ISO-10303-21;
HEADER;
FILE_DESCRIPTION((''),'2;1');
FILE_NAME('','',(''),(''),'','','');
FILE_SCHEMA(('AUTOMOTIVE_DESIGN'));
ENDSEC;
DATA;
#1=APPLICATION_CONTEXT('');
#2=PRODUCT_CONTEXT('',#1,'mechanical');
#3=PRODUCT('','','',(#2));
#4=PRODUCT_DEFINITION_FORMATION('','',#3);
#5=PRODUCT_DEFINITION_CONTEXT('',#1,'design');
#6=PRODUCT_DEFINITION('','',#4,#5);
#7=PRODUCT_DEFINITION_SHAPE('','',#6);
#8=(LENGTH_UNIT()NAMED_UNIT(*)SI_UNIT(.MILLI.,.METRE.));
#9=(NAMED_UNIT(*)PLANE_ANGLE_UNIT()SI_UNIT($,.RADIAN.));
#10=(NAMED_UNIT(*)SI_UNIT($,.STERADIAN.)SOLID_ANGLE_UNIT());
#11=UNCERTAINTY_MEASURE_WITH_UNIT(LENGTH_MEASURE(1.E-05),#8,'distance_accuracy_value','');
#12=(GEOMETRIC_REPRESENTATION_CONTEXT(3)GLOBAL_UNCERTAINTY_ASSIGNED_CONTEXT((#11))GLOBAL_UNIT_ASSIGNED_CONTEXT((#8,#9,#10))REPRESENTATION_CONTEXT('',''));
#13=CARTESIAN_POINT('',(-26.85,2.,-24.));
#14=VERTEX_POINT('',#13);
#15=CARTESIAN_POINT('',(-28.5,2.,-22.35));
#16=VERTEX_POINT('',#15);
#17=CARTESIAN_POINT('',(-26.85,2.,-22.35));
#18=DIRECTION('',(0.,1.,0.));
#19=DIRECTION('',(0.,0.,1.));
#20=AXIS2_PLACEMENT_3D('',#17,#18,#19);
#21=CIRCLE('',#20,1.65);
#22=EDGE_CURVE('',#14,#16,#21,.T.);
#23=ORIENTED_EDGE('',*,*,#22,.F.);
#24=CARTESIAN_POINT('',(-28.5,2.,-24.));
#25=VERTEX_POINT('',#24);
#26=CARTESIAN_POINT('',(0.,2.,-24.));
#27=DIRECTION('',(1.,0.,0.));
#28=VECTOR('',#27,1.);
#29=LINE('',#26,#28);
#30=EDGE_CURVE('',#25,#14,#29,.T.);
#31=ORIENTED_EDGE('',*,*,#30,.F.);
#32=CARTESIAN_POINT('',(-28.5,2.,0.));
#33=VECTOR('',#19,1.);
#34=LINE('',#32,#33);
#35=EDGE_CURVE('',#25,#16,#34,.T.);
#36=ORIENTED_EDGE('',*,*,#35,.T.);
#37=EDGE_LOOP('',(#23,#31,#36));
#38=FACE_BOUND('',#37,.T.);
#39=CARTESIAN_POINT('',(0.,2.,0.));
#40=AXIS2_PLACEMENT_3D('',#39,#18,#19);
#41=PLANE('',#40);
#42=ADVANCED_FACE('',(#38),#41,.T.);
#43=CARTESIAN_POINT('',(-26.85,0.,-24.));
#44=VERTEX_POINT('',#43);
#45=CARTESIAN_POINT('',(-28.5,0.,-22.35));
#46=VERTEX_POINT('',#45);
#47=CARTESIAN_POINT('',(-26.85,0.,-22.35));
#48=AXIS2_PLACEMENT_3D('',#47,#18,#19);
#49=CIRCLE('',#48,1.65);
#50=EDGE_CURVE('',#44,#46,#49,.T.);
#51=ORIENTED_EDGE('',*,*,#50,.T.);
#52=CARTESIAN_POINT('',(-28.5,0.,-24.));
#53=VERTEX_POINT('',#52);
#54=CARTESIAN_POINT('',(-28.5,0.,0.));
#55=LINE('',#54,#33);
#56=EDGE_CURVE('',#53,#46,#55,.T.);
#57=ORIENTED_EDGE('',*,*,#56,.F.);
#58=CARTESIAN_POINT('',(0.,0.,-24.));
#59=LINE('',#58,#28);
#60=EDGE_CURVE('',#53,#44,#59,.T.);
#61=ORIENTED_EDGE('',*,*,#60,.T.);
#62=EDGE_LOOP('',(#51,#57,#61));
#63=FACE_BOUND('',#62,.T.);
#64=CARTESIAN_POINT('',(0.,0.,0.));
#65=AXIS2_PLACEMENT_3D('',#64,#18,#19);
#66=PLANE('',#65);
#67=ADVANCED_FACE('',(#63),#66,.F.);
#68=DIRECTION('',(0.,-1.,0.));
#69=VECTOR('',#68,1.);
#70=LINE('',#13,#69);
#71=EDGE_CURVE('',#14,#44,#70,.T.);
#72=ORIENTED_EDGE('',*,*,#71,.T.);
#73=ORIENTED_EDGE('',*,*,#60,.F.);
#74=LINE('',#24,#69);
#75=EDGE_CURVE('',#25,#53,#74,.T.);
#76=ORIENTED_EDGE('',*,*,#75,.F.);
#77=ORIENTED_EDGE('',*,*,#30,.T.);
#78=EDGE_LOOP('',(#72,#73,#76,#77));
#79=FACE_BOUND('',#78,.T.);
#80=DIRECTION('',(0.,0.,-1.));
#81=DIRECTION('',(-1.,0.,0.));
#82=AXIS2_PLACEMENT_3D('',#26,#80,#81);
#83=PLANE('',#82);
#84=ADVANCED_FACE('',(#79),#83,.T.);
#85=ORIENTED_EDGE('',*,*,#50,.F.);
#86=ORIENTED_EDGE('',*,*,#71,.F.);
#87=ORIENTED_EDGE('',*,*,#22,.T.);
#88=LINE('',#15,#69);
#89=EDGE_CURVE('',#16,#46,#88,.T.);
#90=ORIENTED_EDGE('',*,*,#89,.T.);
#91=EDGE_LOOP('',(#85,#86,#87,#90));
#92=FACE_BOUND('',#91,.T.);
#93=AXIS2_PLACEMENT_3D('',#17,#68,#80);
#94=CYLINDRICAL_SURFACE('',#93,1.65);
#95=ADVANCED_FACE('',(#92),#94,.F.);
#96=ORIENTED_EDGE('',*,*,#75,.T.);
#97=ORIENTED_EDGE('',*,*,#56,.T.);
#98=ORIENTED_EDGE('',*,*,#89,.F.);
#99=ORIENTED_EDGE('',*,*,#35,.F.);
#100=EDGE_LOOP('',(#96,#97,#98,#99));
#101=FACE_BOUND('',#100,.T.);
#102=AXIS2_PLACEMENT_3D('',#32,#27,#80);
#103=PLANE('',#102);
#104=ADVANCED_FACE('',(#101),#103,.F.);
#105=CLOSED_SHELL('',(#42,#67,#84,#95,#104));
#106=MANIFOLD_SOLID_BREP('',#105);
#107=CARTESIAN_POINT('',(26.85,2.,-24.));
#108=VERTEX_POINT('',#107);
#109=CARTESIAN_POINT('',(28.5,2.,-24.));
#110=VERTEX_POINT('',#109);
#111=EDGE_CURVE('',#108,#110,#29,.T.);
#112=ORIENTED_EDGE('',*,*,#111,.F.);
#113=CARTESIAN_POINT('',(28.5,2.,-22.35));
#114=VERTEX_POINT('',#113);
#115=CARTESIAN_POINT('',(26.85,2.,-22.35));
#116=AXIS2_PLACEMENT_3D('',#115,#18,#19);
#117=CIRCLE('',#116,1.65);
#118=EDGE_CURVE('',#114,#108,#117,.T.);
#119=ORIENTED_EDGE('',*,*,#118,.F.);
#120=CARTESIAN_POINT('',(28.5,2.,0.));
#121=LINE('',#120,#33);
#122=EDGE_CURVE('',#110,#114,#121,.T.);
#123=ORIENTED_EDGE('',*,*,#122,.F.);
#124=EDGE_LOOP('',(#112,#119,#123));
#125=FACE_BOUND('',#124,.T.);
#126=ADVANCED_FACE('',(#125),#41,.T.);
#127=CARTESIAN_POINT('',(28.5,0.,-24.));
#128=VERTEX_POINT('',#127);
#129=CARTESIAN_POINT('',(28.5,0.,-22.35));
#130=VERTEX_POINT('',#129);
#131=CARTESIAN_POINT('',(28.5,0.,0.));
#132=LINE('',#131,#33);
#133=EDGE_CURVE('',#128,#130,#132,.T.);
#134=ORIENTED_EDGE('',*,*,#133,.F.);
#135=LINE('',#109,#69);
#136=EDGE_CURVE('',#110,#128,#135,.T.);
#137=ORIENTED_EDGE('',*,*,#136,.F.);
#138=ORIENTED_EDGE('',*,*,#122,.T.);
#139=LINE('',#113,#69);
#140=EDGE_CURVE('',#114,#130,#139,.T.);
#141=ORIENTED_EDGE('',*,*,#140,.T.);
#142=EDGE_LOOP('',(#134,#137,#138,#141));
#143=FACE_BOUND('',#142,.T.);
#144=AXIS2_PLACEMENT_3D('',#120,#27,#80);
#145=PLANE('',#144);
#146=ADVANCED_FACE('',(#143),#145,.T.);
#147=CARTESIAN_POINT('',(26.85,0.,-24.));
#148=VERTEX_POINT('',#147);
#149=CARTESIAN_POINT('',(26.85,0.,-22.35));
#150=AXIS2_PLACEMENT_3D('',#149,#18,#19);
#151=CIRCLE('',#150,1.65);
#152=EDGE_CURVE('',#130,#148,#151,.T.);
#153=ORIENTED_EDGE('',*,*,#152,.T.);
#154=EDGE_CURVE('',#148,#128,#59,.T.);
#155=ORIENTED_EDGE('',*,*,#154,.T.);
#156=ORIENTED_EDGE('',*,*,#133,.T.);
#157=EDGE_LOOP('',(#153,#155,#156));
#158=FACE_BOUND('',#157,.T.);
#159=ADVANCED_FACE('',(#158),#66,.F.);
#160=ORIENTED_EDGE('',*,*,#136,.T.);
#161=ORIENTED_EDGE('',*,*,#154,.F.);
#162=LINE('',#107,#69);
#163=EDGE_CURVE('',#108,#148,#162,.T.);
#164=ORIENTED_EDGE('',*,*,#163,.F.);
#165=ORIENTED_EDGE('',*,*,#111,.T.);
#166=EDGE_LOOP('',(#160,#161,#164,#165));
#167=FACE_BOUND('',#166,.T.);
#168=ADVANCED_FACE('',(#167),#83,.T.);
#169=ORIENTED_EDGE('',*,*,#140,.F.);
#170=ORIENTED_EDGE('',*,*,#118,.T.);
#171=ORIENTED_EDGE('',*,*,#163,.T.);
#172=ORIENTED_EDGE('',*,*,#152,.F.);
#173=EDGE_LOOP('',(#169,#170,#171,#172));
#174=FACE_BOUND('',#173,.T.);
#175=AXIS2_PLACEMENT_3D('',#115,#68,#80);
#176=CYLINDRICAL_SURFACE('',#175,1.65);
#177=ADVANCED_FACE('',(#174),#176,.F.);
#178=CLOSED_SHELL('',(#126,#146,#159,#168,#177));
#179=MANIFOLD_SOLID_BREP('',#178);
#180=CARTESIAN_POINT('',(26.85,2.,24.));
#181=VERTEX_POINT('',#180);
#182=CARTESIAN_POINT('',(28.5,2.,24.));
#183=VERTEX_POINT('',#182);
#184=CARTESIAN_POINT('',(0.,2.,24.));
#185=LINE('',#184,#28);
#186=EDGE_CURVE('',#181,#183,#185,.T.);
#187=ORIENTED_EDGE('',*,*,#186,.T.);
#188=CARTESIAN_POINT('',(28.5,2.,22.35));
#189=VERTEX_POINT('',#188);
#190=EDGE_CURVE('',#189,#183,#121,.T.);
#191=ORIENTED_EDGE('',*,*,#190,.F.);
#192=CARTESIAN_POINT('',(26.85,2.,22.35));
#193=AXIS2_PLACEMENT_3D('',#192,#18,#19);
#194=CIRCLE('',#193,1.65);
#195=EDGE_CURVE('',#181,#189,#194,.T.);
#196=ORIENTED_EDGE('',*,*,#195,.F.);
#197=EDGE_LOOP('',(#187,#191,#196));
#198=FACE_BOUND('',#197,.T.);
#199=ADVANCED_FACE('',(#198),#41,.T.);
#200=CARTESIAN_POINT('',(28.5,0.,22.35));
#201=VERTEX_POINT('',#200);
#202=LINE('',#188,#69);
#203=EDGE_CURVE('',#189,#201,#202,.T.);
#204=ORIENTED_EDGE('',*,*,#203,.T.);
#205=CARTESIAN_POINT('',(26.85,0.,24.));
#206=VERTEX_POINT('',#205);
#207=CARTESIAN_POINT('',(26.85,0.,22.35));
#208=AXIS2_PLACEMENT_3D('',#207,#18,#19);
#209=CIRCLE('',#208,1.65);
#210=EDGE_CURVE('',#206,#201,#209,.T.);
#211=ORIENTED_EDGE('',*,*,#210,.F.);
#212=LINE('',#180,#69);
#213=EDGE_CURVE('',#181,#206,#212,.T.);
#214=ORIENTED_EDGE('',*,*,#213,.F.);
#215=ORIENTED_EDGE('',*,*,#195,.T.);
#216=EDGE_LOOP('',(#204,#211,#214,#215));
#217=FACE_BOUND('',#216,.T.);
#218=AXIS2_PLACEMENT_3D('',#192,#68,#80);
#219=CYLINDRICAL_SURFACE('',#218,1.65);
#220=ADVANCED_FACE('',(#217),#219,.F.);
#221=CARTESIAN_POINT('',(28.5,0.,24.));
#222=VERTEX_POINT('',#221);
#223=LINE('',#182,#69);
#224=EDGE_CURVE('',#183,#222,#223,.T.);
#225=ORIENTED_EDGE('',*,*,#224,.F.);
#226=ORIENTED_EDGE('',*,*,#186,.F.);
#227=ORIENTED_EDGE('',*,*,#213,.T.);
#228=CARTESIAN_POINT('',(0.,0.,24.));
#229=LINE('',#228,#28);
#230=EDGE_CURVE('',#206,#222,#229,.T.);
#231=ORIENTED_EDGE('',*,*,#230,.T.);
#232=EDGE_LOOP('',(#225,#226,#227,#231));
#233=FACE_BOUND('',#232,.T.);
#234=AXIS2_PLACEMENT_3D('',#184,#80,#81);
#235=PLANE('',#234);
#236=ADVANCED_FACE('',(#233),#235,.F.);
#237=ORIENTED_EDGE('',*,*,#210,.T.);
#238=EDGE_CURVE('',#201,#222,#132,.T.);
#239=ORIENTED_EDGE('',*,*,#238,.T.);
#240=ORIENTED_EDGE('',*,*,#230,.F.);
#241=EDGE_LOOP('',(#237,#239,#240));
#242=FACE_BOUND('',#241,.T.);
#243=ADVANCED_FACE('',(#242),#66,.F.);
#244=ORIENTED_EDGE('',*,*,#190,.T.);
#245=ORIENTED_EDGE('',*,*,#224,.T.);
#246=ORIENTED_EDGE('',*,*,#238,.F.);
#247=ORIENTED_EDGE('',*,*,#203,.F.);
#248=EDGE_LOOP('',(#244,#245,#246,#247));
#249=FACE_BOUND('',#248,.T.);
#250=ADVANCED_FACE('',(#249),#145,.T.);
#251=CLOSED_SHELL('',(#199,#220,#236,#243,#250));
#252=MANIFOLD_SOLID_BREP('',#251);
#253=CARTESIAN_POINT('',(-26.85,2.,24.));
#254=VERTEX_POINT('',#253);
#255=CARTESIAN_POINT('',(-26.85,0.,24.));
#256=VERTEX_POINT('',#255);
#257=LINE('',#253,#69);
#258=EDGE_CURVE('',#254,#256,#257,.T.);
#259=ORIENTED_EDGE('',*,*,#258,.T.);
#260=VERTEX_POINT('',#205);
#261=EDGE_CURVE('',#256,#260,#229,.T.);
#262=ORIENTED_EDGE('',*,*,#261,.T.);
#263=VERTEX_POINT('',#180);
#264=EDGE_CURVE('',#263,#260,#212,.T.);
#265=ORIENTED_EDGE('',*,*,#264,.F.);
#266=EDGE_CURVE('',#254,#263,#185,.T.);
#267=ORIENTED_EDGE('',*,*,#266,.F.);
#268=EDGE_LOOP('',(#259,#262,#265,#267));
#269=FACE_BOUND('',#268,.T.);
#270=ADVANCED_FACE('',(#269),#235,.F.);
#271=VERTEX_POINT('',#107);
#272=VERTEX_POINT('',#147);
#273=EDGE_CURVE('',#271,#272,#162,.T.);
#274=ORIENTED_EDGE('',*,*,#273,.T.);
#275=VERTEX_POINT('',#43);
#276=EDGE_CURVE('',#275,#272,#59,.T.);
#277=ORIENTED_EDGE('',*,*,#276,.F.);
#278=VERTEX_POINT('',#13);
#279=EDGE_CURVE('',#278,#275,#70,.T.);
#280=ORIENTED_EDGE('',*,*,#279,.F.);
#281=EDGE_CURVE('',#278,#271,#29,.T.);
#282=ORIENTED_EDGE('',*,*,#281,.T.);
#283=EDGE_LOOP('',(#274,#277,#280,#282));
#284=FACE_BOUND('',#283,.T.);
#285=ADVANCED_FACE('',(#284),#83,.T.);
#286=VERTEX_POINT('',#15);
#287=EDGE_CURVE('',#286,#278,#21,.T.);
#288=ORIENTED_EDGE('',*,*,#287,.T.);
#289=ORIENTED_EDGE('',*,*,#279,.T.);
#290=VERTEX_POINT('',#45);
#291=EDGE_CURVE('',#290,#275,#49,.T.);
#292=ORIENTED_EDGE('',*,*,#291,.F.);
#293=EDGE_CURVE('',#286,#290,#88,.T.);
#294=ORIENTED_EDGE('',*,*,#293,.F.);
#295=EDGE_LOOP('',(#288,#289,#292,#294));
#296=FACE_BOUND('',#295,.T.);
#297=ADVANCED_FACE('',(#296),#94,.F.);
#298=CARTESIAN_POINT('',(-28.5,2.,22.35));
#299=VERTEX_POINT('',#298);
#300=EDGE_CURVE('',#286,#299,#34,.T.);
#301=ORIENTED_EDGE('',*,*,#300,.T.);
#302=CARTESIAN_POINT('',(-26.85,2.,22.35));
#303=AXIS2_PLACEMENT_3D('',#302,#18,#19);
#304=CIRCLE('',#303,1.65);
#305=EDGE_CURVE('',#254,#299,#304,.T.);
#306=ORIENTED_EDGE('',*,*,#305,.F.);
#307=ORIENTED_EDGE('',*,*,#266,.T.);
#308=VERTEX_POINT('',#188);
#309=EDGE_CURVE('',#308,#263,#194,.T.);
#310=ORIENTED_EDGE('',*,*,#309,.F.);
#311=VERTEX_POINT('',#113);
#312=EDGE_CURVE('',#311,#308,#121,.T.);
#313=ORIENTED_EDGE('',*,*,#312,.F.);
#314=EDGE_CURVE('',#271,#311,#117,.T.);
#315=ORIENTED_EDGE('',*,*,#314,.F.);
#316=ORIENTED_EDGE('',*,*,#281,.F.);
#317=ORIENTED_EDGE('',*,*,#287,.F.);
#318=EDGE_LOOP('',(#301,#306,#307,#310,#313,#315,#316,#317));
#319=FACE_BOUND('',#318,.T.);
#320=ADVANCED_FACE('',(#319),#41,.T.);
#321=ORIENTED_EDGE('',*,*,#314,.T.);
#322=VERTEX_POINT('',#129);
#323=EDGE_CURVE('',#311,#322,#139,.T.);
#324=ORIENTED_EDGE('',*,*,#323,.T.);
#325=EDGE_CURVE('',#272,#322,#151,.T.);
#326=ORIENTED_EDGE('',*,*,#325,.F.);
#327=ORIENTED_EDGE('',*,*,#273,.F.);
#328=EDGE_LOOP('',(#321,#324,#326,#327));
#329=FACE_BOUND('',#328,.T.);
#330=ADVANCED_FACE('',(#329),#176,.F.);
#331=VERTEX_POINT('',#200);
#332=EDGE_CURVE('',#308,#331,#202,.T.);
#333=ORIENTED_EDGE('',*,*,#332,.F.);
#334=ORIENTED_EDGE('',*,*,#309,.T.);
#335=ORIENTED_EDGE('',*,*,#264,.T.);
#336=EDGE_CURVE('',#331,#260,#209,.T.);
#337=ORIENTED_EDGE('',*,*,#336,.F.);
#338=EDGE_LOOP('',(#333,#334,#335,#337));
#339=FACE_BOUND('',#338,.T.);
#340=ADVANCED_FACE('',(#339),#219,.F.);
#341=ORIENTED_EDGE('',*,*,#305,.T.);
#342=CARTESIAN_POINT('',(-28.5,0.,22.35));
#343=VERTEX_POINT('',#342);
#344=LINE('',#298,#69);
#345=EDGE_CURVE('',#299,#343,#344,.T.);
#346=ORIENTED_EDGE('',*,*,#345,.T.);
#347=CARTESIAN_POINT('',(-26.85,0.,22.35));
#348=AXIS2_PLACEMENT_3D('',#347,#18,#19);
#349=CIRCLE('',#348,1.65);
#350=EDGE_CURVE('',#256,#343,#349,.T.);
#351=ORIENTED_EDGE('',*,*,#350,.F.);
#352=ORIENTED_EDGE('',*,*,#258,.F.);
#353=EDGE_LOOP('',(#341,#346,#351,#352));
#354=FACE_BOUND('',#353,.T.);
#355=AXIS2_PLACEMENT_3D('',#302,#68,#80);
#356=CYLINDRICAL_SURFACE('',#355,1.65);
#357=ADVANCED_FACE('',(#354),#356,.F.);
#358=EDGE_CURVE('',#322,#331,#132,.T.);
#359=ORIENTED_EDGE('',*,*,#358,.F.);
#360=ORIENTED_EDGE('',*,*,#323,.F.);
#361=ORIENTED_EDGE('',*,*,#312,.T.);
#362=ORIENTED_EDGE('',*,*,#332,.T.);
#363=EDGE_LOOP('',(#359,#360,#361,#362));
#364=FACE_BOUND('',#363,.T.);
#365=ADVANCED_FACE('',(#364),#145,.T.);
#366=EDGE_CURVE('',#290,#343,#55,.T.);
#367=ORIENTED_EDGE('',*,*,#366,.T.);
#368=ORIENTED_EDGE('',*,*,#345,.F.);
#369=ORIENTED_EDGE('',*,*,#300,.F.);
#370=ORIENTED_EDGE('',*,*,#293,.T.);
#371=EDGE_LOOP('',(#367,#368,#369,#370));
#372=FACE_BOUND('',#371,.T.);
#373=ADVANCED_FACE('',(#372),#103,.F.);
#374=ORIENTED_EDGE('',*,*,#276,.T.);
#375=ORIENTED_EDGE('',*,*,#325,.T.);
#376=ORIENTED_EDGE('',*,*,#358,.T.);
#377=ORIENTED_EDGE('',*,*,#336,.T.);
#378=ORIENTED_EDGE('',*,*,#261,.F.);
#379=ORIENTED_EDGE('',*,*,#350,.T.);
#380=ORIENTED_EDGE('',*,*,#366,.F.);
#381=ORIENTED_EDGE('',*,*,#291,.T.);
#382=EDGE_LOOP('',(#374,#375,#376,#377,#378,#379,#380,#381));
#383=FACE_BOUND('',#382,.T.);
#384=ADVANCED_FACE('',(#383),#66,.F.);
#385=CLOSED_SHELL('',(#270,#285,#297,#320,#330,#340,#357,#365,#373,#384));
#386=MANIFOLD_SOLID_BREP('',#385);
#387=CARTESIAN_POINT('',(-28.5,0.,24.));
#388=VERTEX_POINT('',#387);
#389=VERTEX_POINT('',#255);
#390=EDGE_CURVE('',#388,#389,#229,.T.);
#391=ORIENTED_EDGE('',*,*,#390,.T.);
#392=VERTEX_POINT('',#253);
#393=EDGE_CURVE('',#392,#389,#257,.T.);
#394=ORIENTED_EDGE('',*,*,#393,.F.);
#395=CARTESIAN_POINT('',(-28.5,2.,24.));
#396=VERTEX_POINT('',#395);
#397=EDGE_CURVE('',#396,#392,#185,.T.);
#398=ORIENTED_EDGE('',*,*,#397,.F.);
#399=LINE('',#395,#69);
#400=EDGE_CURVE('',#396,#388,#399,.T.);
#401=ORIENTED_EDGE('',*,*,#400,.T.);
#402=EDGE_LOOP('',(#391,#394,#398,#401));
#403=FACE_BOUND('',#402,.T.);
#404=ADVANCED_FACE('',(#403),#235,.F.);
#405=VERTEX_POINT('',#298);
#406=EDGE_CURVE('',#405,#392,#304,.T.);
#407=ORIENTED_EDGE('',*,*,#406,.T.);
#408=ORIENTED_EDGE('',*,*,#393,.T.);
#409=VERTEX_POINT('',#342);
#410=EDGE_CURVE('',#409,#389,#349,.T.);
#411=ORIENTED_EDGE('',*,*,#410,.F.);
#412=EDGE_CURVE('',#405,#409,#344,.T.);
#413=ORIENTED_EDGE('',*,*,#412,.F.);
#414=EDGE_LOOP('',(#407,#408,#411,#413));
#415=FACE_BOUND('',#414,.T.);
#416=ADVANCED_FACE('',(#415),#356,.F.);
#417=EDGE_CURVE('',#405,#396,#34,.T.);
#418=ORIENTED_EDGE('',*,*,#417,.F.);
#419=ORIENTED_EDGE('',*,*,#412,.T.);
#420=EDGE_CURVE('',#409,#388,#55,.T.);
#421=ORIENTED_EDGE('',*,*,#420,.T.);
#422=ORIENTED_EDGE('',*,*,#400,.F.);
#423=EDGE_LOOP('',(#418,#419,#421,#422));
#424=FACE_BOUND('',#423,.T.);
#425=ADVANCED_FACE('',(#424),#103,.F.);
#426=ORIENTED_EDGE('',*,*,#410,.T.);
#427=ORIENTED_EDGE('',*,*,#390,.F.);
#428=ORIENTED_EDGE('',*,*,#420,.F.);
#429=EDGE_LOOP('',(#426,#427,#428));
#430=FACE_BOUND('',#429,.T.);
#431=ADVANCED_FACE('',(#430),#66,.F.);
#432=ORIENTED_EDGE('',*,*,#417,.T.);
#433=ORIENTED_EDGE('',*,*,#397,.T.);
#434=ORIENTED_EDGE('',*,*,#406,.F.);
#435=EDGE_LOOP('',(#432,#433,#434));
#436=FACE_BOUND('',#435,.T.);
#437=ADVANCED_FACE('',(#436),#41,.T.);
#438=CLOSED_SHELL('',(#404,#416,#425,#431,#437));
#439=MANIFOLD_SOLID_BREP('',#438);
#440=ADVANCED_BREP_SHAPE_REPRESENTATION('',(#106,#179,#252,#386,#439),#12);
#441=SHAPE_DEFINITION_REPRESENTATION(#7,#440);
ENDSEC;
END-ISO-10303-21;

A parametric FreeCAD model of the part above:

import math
import FreeCAD as App
import Part
import Sketcher

doc = App.newDocument("Part")
body = doc.addObject("PartDesign::Body", "Body")
body.AllowCompound = True

# Sketch on XZ plane
sketch1 = doc.addObject("Sketcher::SketchObject", "Sketch")
body.addObject(sketch1)
sketch1.AttachmentSupport = (doc.XZ_Plane, [""])
sketch1.MapMode = "FlatFace"
sketch1.addGeometry(Part.LineSegment(App.Vector(-26.9, -24, 0), App.Vector(-28.5, -24, 0)), False)
sketch1.addGeometry(Part.LineSegment(App.Vector(-28.5, -24, 0), App.Vector(-28.5, -22.4, 0)), False)
sketch1.addGeometry(Part.ArcOfCircle(Part.Circle(App.Vector(-26.9, -22.4, 0), App.Vector(0, 0, 1), 1.6), math.radians(180), math.radians(270)), False)
sketch1.addGeometry(Part.LineSegment(App.Vector(26.9, -24, 0), App.Vector(-26.9, -24, 0)), False)
sketch1.addGeometry(Part.ArcOfCircle(Part.Circle(App.Vector(-26.9, -22.4, 0), App.Vector(0, 0, 1), 1.6), math.radians(-90), math.radians(180)), False)
sketch1.addGeometry(Part.LineSegment(App.Vector(-28.5, -22.4, 0), App.Vector(-28.5, 22.3, 0)), False)
sketch1.addGeometry(Part.ArcOfCircle(Part.Circle(App.Vector(-26.9, 22.4, 0), App.Vector(0, 0, 1), 1.6), math.radians(-180), math.radians(90)), False)
sketch1.addGeometry(Part.LineSegment(App.Vector(-26.9, 24, 0), App.Vector(26.9, 24, 0)), False)
sketch1.addGeometry(Part.ArcOfCircle(Part.Circle(App.Vector(26.9, 22.4, 0), App.Vector(0, 0, 1), 1.6), math.radians(90), math.radians(360)), False)
sketch1.addGeometry(Part.LineSegment(App.Vector(28.5, 22.4, 0), App.Vector(28.5, -22.4, 0)), False)
sketch1.addGeometry(Part.ArcOfCircle(Part.Circle(App.Vector(26.9, -22.4, 0), App.Vector(0, 0, 1), 1.6), math.radians(0), math.radians(270)), False)
sketch1.addGeometry(Part.LineSegment(App.Vector(28.5, -24, 0), App.Vector(26.9, -24, 0)), False)
sketch1.addGeometry(Part.ArcOfCircle(Part.Circle(App.Vector(26.9, -22.4, 0), App.Vector(0, 0, 1), 1.6), math.radians(-90), math.radians(0)), False)
sketch1.addGeometry(Part.LineSegment(App.Vector(28.5, -22.4, 0), App.Vector(28.5, -24, 0)), False)
sketch1.addGeometry(Part.ArcOfCircle(Part.Circle(App.Vector(-26.9, 22.4, 0), App.Vector(0, 0, 1), 1.6), math.radians(90), math.radians(180)), False)
sketch1.addGeometry(Part.LineSegment(App.Vector(-28.5, 22.3, 0), App.Vector(-28.5, 24, 0)), False)
sketch1.addGeometry(Part.LineSegment(App.Vector(-28.5, 24, 0), App.Vector(-26.9, 24, 0)), False)
sketch1.addGeometry(Part.LineSegment(App.Vector(28.5, 24, 0), App.Vector(28.5, 22.4, 0)), False)
sketch1.addGeometry(Part.ArcOfCircle(Part.Circle(App.Vector(26.9, 22.4, 0), App.Vector(0, 0, 1), 1.6), math.radians(0), math.radians(90)), False)
sketch1.addGeometry(Part.LineSegment(App.Vector(26.9, 24, 0), App.Vector(28.5, 24, 0)), False)
sketch1.addConstraint(Sketcher.Constraint("Coincident", 0, 2, 1, 1))
sketch1.addConstraint(Sketcher.Constraint("Tangent", 1, 2, 2, 1))
sketch1.addConstraint(Sketcher.Constraint("Tangent", 2, 2, 0, 1))
sketch1.addConstraint(Sketcher.Constraint("Tangent", 3, 2, 4, 1))
sketch1.addConstraint(Sketcher.Constraint("Tangent", 4, 2, 5, 1))
sketch1.addConstraint(Sketcher.Constraint("Tangent", 5, 2, 6, 1))
sketch1.addConstraint(Sketcher.Constraint("Tangent", 6, 2, 7, 1))
sketch1.addConstraint(Sketcher.Constraint("Tangent", 7, 2, 8, 1))
sketch1.addConstraint(Sketcher.Constraint("Tangent", 8, 2, 9, 1))
sketch1.addConstraint(Sketcher.Constraint("Tangent", 9, 2, 10, 1))
sketch1.addConstraint(Sketcher.Constraint("Tangent", 10, 2, 3, 1))
sketch1.addConstraint(Sketcher.Constraint("Tangent", 11, 2, 12, 1))
sketch1.addConstraint(Sketcher.Constraint("Tangent", 12, 2, 13, 1))
sketch1.addConstraint(Sketcher.Constraint("Coincident", 13, 2, 11, 1))
sketch1.addConstraint(Sketcher.Constraint("Tangent", 14, 2, 15, 1))
sketch1.addConstraint(Sketcher.Constraint("Coincident", 15, 2, 16, 1))
sketch1.addConstraint(Sketcher.Constraint("Tangent", 16, 2, 14, 1))
sketch1.addConstraint(Sketcher.Constraint("Tangent", 17, 2, 18, 1))
sketch1.addConstraint(Sketcher.Constraint("Tangent", 18, 2, 19, 1))
sketch1.addConstraint(Sketcher.Constraint("Coincident", 19, 2, 17, 1))
sketch1.addConstraint(Sketcher.Constraint("Horizontal", 0))
sketch1.addConstraint(Sketcher.Constraint("Vertical", 1))
sketch1.addConstraint(Sketcher.Constraint("Horizontal", 3))
sketch1.addConstraint(Sketcher.Constraint("Vertical", 5))
sketch1.addConstraint(Sketcher.Constraint("Horizontal", 7))
sketch1.addConstraint(Sketcher.Constraint("Vertical", 9))
sketch1.addConstraint(Sketcher.Constraint("Horizontal", 11))
sketch1.addConstraint(Sketcher.Constraint("Vertical", 13))
sketch1.addConstraint(Sketcher.Constraint("Vertical", 15))
sketch1.addConstraint(Sketcher.Constraint("Horizontal", 16))
sketch1.addConstraint(Sketcher.Constraint("Vertical", 17))
sketch1.addConstraint(Sketcher.Constraint("Horizontal", 19))
sketch1.addConstraint(Sketcher.Constraint("Coincident", 4, 3, 2, 3))
sketch1.addConstraint(Sketcher.Constraint("Coincident", 12, 3, 10, 3))
sketch1.addConstraint(Sketcher.Constraint("Coincident", 14, 3, 6, 3))
sketch1.addConstraint(Sketcher.Constraint("Coincident", 18, 3, 8, 3))
sketch1.addConstraint(Sketcher.Constraint("Equal", 2, 4))
sketch1.addConstraint(Sketcher.Constraint("Equal", 4, 6))
sketch1.addConstraint(Sketcher.Constraint("Equal", 6, 8))
sketch1.addConstraint(Sketcher.Constraint("Equal", 8, 10))
sketch1.addConstraint(Sketcher.Constraint("Equal", 10, 12))
sketch1.addConstraint(Sketcher.Constraint("Equal", 12, 14))
sketch1.addConstraint(Sketcher.Constraint("Equal", 14, 18))
sketch1.addConstraint(Sketcher.Constraint("Symmetric", 2, 3, 8, 3, -1, 1))
sketch1.addConstraint(Sketcher.Constraint("Radius", 2, 1.65))
sketch1.addConstraint(Sketcher.Constraint("DistanceX", 3, 2, 3, 1, 53.7))
sketch1.addConstraint(Sketcher.Constraint("DistanceY", 5, 1, 5, 2, 44.7))
pad1 = doc.addObject("PartDesign::Pad", "Pad")
body.addObject(pad1)
pad1.Profile = sketch1
pad1.Length = 2
pad1.Reversed = True

doc.recompute()
